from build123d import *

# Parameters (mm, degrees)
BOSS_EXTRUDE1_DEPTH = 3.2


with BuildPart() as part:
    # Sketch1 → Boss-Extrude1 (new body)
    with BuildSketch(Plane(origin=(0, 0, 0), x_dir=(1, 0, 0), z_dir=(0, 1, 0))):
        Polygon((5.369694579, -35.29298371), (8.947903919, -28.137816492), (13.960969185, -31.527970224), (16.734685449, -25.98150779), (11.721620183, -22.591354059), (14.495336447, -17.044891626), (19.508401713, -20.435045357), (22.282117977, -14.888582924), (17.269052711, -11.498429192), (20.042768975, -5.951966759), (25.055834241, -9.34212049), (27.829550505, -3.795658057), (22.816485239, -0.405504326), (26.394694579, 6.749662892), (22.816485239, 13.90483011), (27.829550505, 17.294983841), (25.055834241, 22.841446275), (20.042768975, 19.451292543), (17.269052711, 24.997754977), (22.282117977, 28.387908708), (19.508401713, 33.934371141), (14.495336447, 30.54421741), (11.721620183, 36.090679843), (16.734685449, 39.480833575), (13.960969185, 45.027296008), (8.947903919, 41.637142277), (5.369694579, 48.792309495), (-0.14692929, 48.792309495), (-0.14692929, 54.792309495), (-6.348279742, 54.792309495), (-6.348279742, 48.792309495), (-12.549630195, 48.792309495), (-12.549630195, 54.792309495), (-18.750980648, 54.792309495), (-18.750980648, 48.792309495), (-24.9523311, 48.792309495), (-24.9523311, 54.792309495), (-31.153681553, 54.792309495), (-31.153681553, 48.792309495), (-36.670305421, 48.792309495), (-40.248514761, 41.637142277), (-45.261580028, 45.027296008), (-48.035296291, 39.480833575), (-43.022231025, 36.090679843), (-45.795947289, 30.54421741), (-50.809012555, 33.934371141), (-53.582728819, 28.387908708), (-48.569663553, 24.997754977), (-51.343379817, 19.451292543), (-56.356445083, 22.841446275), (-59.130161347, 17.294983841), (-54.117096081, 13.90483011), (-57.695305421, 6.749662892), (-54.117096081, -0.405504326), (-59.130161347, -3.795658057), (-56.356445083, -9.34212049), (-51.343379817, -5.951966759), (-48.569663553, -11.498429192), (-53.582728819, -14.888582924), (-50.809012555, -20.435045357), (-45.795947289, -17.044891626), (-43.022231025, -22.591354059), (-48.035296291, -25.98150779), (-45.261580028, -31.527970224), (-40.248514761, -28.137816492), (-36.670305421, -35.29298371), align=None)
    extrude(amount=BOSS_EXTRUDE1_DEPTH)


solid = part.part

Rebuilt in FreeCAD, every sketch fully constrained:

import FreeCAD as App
import Part
import Sketcher

doc = App.newDocument("Part")
body = doc.addObject("PartDesign::Body", "Body")

sketch1 = doc.addObject("Sketcher::SketchObject", "Sketch")
body.addObject(sketch1)
sketch1.AttachmentSupport = (doc.XZ_Plane, [""])
sketch1.MapMode = "FlatFace"
sketch1.addGeometry([
    Part.LineSegment(App.Vector(5.369695, 35.292984, 0), App.Vector(8.947904, 28.137816, 0)),
    Part.LineSegment(App.Vector(8.947904, 28.137816, 0), App.Vector(13.960969, 31.52797, 0)),
    Part.LineSegment(App.Vector(13.960969, 31.52797, 0), App.Vector(16.734685, 25.981508, 0)),
    Part.LineSegment(App.Vector(16.734685, 25.981508, 0), App.Vector(11.72162, 22.591354, 0)),
    Part.LineSegment(App.Vector(11.72162, 22.591354, 0), App.Vector(14.495336, 17.044892, 0)),
    Part.LineSegment(App.Vector(14.495336, 17.044892, 0), App.Vector(19.508402, 20.435045, 0)),
    Part.LineSegment(App.Vector(19.508402, 20.435045, 0), App.Vector(22.282118, 14.888583, 0)),
    Part.LineSegment(App.Vector(22.282118, 14.888583, 0), App.Vector(17.269053, 11.498429, 0)),
    Part.LineSegment(App.Vector(17.269053, 11.498429, 0), App.Vector(20.042769, 5.951967, 0)),
    Part.LineSegment(App.Vector(20.042769, 5.951967, 0), App.Vector(25.055834, 9.34212, 0)),
    Part.LineSegment(App.Vector(25.055834, 9.34212, 0), App.Vector(27.829551, 3.795658, 0)),
    Part.LineSegment(App.Vector(27.829551, 3.795658, 0), App.Vector(22.816485, 0.405504, 0)),
    Part.LineSegment(App.Vector(22.816485, 0.405504, 0), App.Vector(26.394695, -6.749663, 0)),
    Part.LineSegment(App.Vector(26.394695, -6.749663, 0), App.Vector(22.816485, -13.90483, 0)),
    Part.LineSegment(App.Vector(22.816485, -13.90483, 0), App.Vector(27.829551, -17.294984, 0)),
    Part.LineSegment(App.Vector(27.829551, -17.294984, 0), App.Vector(25.055834, -22.841446, 0)),
    Part.LineSegment(App.Vector(25.055834, -22.841446, 0), App.Vector(20.042769, -19.451293, 0)),
    Part.LineSegment(App.Vector(20.042769, -19.451293, 0), App.Vector(17.269053, -24.997755, 0)),
    Part.LineSegment(App.Vector(17.269053, -24.997755, 0), App.Vector(22.282118, -28.387909, 0)),
    Part.LineSegment(App.Vector(22.282118, -28.387909, 0), App.Vector(19.508402, -33.934371, 0)),
    Part.LineSegment(App.Vector(19.508402, -33.934371, 0), App.Vector(14.495336, -30.544217, 0)),
    Part.LineSegment(App.Vector(14.495336, -30.544217, 0), App.Vector(11.72162, -36.09068, 0)),
    Part.LineSegment(App.Vector(11.72162, -36.09068, 0), App.Vector(16.734685, -39.480834, 0)),
    Part.LineSegment(App.Vector(16.734685, -39.480834, 0), App.Vector(13.960969, -45.027296, 0)),
    Part.LineSegment(App.Vector(13.960969, -45.027296, 0), App.Vector(8.947904, -41.637142, 0)),
    Part.LineSegment(App.Vector(8.947904, -41.637142, 0), App.Vector(5.369695, -48.792309, 0)),
    Part.LineSegment(App.Vector(5.369695, -48.792309, 0), App.Vector(-0.146929, -48.792309, 0)),
    Part.LineSegment(App.Vector(-0.146929, -48.792309, 0), App.Vector(-0.146929, -54.792309, 0)),
    Part.LineSegment(App.Vector(-0.146929, -54.792309, 0), App.Vector(-6.34828, -54.792309, 0)),
    Part.LineSegment(App.Vector(-6.34828, -54.792309, 0), App.Vector(-6.34828, -48.792309, 0)),
    Part.LineSegment(App.Vector(-6.34828, -48.792309, 0), App.Vector(-12.54963, -48.792309, 0)),
    Part.LineSegment(App.Vector(-12.54963, -48.792309, 0), App.Vector(-12.54963, -54.792309, 0)),
    Part.LineSegment(App.Vector(-12.54963, -54.792309, 0), App.Vector(-18.750981, -54.792309, 0)),
    Part.LineSegment(App.Vector(-18.750981, -54.792309, 0), App.Vector(-18.750981, -48.792309, 0)),
    Part.LineSegment(App.Vector(-18.750981, -48.792309, 0), App.Vector(-24.952331, -48.792309, 0)),
    Part.LineSegment(App.Vector(-24.952331, -48.792309, 0), App.Vector(-24.952331, -54.792309, 0)),
    Part.LineSegment(App.Vector(-24.952331, -54.792309, 0), App.Vector(-31.153682, -54.792309, 0)),
    Part.LineSegment(App.Vector(-31.153682, -54.792309, 0), App.Vector(-31.153682, -48.792309, 0)),
    Part.LineSegment(App.Vector(-31.153682, -48.792309, 0), App.Vector(-36.670305, -48.792309, 0)),
    Part.LineSegment(App.Vector(-36.670305, -48.792309, 0), App.Vector(-40.248515, -41.637142, 0)),
    Part.LineSegment(App.Vector(-40.248515, -41.637142, 0), App.Vector(-45.26158, -45.027296, 0)),
    Part.LineSegment(App.Vector(-45.26158, -45.027296, 0), App.Vector(-48.035296, -39.480834, 0)),
    Part.LineSegment(App.Vector(-48.035296, -39.480834, 0), App.Vector(-43.022231, -36.09068, 0)),
    Part.LineSegment(App.Vector(-43.022231, -36.09068, 0), App.Vector(-45.795947, -30.544217, 0)),
    Part.LineSegment(App.Vector(-45.795947, -30.544217, 0), App.Vector(-50.809013, -33.934371, 0)),
    Part.LineSegment(App.Vector(-50.809013, -33.934371, 0), App.Vector(-53.582729, -28.387909, 0)),
    Part.LineSegment(App.Vector(-53.582729, -28.387909, 0), App.Vector(-48.569664, -24.997755, 0)),
    Part.LineSegment(App.Vector(-48.569664, -24.997755, 0), App.Vector(-51.34338, -19.451293, 0)),
    Part.LineSegment(App.Vector(-51.34338, -19.451293, 0), App.Vector(-56.356445, -22.841446, 0)),
    Part.LineSegment(App.Vector(-56.356445, -22.841446, 0), App.Vector(-59.130161, -17.294984, 0)),
    Part.LineSegment(App.Vector(-59.130161, -17.294984, 0), App.Vector(-54.117096, -13.90483, 0)),
    Part.LineSegment(App.Vector(-54.117096, -13.90483, 0), App.Vector(-57.695305, -6.749663, 0)),
    Part.LineSegment(App.Vector(-57.695305, -6.749663, 0), App.Vector(-54.117096, 0.405504, 0)),
    Part.LineSegment(App.Vector(-54.117096, 0.405504, 0), App.Vector(-59.130161, 3.795658, 0)),
    Part.LineSegment(App.Vector(-59.130161, 3.795658, 0), App.Vector(-56.356445, 9.34212, 0)),
    Part.LineSegment(App.Vector(-56.356445, 9.34212, 0), App.Vector(-51.34338, 5.951967, 0)),
    Part.LineSegment(App.Vector(-51.34338, 5.951967, 0), App.Vector(-48.569664, 11.498429, 0)),
    Part.LineSegment(App.Vector(-48.569664, 11.498429, 0), App.Vector(-53.582729, 14.888583, 0)),
    Part.LineSegment(App.Vector(-53.582729, 14.888583, 0), App.Vector(-50.809013, 20.435045, 0)),
    Part.LineSegment(App.Vector(-50.809013, 20.435045, 0), App.Vector(-45.795947, 17.044892, 0)),
    Part.LineSegment(App.Vector(-45.795947, 17.044892, 0), App.Vector(-43.022231, 22.591354, 0)),
    Part.LineSegment(App.Vector(-43.022231, 22.591354, 0), App.Vector(-48.035296, 25.981508, 0)),
    Part.LineSegment(App.Vector(-48.035296, 25.981508, 0), App.Vector(-45.26158, 31.52797, 0)),
    Part.LineSegment(App.Vector(-45.26158, 31.52797, 0), App.Vector(-40.248515, 28.137816, 0)),
    Part.LineSegment(App.Vector(-40.248515, 28.137816, 0), App.Vector(-36.670305, 35.292984, 0)),
    Part.LineSegment(App.Vector(-36.670305, 35.292984, 0), App.Vector(5.369695, 35.292984, 0)),
], False)
sketch1.addConstraint([
    Sketcher.Constraint("Coincident", 0, 2, 1, 1),
    Sketcher.Constraint("Coincident", 1, 2, 2, 1),
    Sketcher.Constraint("Coincident", 2, 2, 3, 1),
    Sketcher.Constraint("Coincident", 3, 2, 4, 1),
    Sketcher.Constraint("Coincident", 4, 2, 5, 1),
    Sketcher.Constraint("Coincident", 5, 2, 6, 1),
    Sketcher.Constraint("Coincident", 6, 2, 7, 1),
    Sketcher.Constraint("Coincident", 7, 2, 8, 1),
    Sketcher.Constraint("Coincident", 8, 2, 9, 1),
    Sketcher.Constraint("Coincident", 9, 2, 10, 1),
    Sketcher.Constraint("Coincident", 10, 2, 11, 1),
    Sketcher.Constraint("Coincident", 11, 2, 12, 1),
    Sketcher.Constraint("Coincident", 12, 2, 13, 1),
    Sketcher.Constraint("Coincident", 13, 2, 14, 1),
    Sketcher.Constraint("Coincident", 14, 2, 15, 1),
    Sketcher.Constraint("Coincident", 15, 2, 16, 1),
    Sketcher.Constraint("Coincident", 16, 2, 17, 1),
    Sketcher.Constraint("Coincident", 17, 2, 18, 1),
    Sketcher.Constraint("Coincident", 18, 2, 19, 1),
    Sketcher.Constraint("Coincident", 19, 2, 20, 1),
    Sketcher.Constraint("Coincident", 20, 2, 21, 1),
    Sketcher.Constraint("Coincident", 21, 2, 22, 1),
    Sketcher.Constraint("Coincident", 22, 2, 23, 1),
    Sketcher.Constraint("Coincident", 23, 2, 24, 1),
    Sketcher.Constraint("Coincident", 24, 2, 25, 1),
    Sketcher.Constraint("Coincident", 25, 2, 26, 1),
    Sketcher.Constraint("Coincident", 26, 2, 27, 1),
    Sketcher.Constraint("Coincident", 27, 2, 28, 1),
    Sketcher.Constraint("Coincident", 28, 2, 29, 1),
    Sketcher.Constraint("Coincident", 29, 2, 30, 1),
    Sketcher.Constraint("Coincident", 30, 2, 31, 1),
    Sketcher.Constraint("Coincident", 31, 2, 32, 1),
    Sketcher.Constraint("Coincident", 32, 2, 33, 1),
    Sketcher.Constraint("Coincident", 33, 2, 34, 1),
    Sketcher.Constraint("Coincident", 34, 2, 35, 1),
    Sketcher.Constraint("Coincident", 35, 2, 36, 1),
    Sketcher.Constraint("Coincident", 36, 2, 37, 1),
    Sketcher.Constraint("Coincident", 37, 2, 38, 1),
    Sketcher.Constraint("Coincident", 38, 2, 39, 1),
    Sketcher.Constraint("Coincident", 39, 2, 40, 1),
    Sketcher.Constraint("Coincident", 40, 2, 41, 1),
    Sketcher.Constraint("Coincident", 41, 2, 42, 1),
    Sketcher.Constraint("Coincident", 42, 2, 43, 1),
    Sketcher.Constraint("Coincident", 43, 2, 44, 1),
    Sketcher.Constraint("Coincident", 44, 2, 45, 1),
    Sketcher.Constraint("Coincident", 45, 2, 46, 1),
    Sketcher.Constraint("Coincident", 46, 2, 47, 1),
    Sketcher.Constraint("Coincident", 47, 2, 48, 1),
    Sketcher.Constraint("Coincident", 48, 2, 49, 1),
    Sketcher.Constraint("Coincident", 49, 2, 50, 1),
    Sketcher.Constraint("Coincident", 50, 2, 51, 1),
    Sketcher.Constraint("Coincident", 51, 2, 52, 1),
    Sketcher.Constraint("Coincident", 52, 2, 53, 1),
    Sketcher.Constraint("Coincident", 53, 2, 54, 1),
    Sketcher.Constraint("Coincident", 54, 2, 55, 1),
    Sketcher.Constraint("Coincident", 55, 2, 56, 1),
    Sketcher.Constraint("Coincident", 56, 2, 57, 1),
    Sketcher.Constraint("Coincident", 57, 2, 58, 1),
    Sketcher.Constraint("Coincident", 58, 2, 59, 1),
    Sketcher.Constraint("Coincident", 59, 2, 60, 1),
    Sketcher.Constraint("Coincident", 60, 2, 61, 1),
    Sketcher.Constraint("Coincident", 61, 2, 62, 1),
    Sketcher.Constraint("Coincident", 62, 2, 63, 1),
    Sketcher.Constraint("Coincident", 63, 2, 64, 1),
    Sketcher.Constraint("Coincident", 64, 2, 65, 1),
    Sketcher.Constraint("Coincident", 65, 2, 0, 1),
    Sketcher.Constraint("Horizontal", 26),
    Sketcher.Constraint("Vertical", 27),
    Sketcher.Constraint("Horizontal", 28),
    Sketcher.Constraint("Vertical", 29),
    Sketcher.Constraint("Horizontal", 30),
    Sketcher.Constraint("Vertical", 31),
    Sketcher.Constraint("Horizontal", 32),
    Sketcher.Constraint("Vertical", 33),
    Sketcher.Constraint("Horizontal", 34),
    Sketcher.Constraint("Vertical", 35),
    Sketcher.Constraint("Horizontal", 36),
    Sketcher.Constraint("Vertical", 37),
    Sketcher.Constraint("Horizontal", 38),
    Sketcher.Constraint("Horizontal", 65),
    Sketcher.Constraint("Parallel", 0, 2),
    Sketcher.Constraint("Parallel", 1, 3),
    Sketcher.Constraint("Parallel", 2, 4),
    Sketcher.Constraint("Parallel", 3, 5),
    Sketcher.Constraint("Parallel", 4, 6),
    Sketcher.Constraint("Parallel", 5, 7),
    Sketcher.Constraint("Parallel", 6, 8),
    Sketcher.Constraint("Parallel", 7, 9),
    Sketcher.Constraint("Parallel", 8, 10),
    Sketcher.Constraint("Parallel", 9, 11),
    Sketcher.Constraint("Parallel", 10, 12),
    Sketcher.Constraint("Parallel", 13, 15),
    Sketcher.Constraint("Parallel", 14, 16),
    Sketcher.Constraint("Parallel", 15, 17),
    Sketcher.Constraint("Parallel", 16, 18),
    Sketcher.Constraint("Parallel", 17, 19),
    Sketcher.Constraint("Parallel", 18, 20),
    Sketcher.Constraint("Parallel", 19, 21),
    Sketcher.Constraint("Parallel", 20, 22),
    Sketcher.Constraint("Parallel", 21, 23),
    Sketcher.Constraint("Parallel", 22, 24),
    Sketcher.Constraint("Parallel", 23, 25),
    Sketcher.Constraint("Parallel", 12, 39),
    Sketcher.Constraint("Parallel", 11, 40),
    Sketcher.Constraint("Parallel", 39, 41),
    Sketcher.Constraint("Parallel", 40, 42),
    Sketcher.Constraint("Parallel", 41, 43),
    Sketcher.Constraint("Parallel", 42, 44),
    Sketcher.Constraint("Parallel", 43, 45),
    Sketcher.Constraint("Parallel", 44, 46),
    Sketcher.Constraint("Parallel", 45, 47),
    Sketcher.Constraint("Parallel", 46, 48),
    Sketcher.Constraint("Parallel", 47, 49),
    Sketcher.Constraint("Parallel", 48, 50),
    Sketcher.Constraint("Parallel", 49, 51),
    Sketcher.Constraint("Parallel", 25, 52),
    Sketcher.Constraint("Parallel", 24, 53),
    Sketcher.Constraint("Parallel", 52, 54),
    Sketcher.Constraint("Parallel", 53, 55),
    Sketcher.Constraint("Parallel", 54, 56),
    Sketcher.Constraint("Parallel", 55, 57),
    Sketcher.Constraint("Parallel", 56, 58),
    Sketcher.Constraint("Parallel", 57, 59),
    Sketcher.Constraint("Parallel", 58, 60),
    Sketcher.Constraint("Parallel", 59, 61),
    Sketcher.Constraint("Parallel", 60, 62),
    Sketcher.Constraint("Parallel", 61, 63),
    Sketcher.Constraint("Parallel", 62, 64),
    Sketcher.Constraint("Horizontal", 26, 2, 29, 2),
    Sketcher.Constraint("Horizontal", 28, 2, 31, 2),
    Sketcher.Constraint("Horizontal", 30, 2, 33, 2),
    Sketcher.Constraint("Horizontal", 32, 2, 35, 2),
    Sketcher.Constraint("Horizontal", 34, 2, 37, 2),
    Sketcher.Constraint("Horizontal", 24, 2, 39, 2),
    Sketcher.Constraint("Horizontal", 23, 2, 40, 2),
    Sketcher.Constraint("Horizontal", 22, 2, 41, 2),
    Sketcher.Constraint("Horizontal", 21, 2, 42, 2),
    Sketcher.Constraint("Horizontal", 20, 2, 43, 2),
    Sketcher.Constraint("Horizontal", 19, 2, 44, 2),
    Sketcher.Constraint("Horizontal", 18, 2, 45, 2),
    Sketcher.Constraint("Horizontal", 17, 2, 46, 2),
    Sketcher.Constraint("Horizontal", 16, 2, 47, 2),
    Sketcher.Constraint("Horizontal", 15, 2, 48, 2),
    Sketcher.Constraint("Horizontal", 14, 2, 49, 2),
    Sketcher.Constraint("Horizontal", 13, 2, 50, 2),
    Sketcher.Constraint("Horizontal", 12, 2, 51, 2),
    Sketcher.Constraint("Horizontal", 11, 2, 52, 2),
    Sketcher.Constraint("Horizontal", 10, 2, 53, 2),
    Sketcher.Constraint("Horizontal", 9, 2, 54, 2),
    Sketcher.Constraint("Horizontal", 8, 2, 55, 2),
    Sketcher.Constraint("Horizontal", 7, 2, 56, 2),
    Sketcher.Constraint("Horizontal", 6, 2, 57, 2),
    Sketcher.Constraint("Horizontal", 5, 2, 58, 2),
    Sketcher.Constraint("Horizontal", 4, 2, 59, 2),
    Sketcher.Constraint("Horizontal", 3, 2, 60, 2),
    Sketcher.Constraint("Horizontal", 2, 2, 61, 2),
    Sketcher.Constraint("Horizontal", 1, 2, 62, 2),
    Sketcher.Constraint("Horizontal", 0, 2, 63, 2),
    Sketcher.Constraint("Vertical", 11, 2, 13, 2),
    Sketcher.Constraint("Vertical", 10, 2, 14, 2),
    Sketcher.Constraint("Vertical", 9, 2, 15, 2),
    Sketcher.Constraint("Vertical", 8, 2, 16, 2),
    Sketcher.Constraint("Vertical", 7, 2, 17, 2),
    Sketcher.Constraint("Vertical", 6, 2, 18, 2),
    Sketcher.Constraint("Vertical", 5, 2, 19, 2),
    Sketcher.Constraint("Vertical", 4, 2, 20, 2),
    Sketcher.Constraint("Vertical", 3, 2, 21, 2),
    Sketcher.Constraint("Vertical", 2, 2, 22, 2),
    Sketcher.Constraint("Vertical", 1, 2, 23, 2),
    Sketcher.Constraint("Vertical", 0, 2, 24, 2),
    Sketcher.Constraint("Vertical", 50, 2, 52, 2),
    Sketcher.Constraint("Vertical", 49, 2, 53, 2),
    Sketcher.Constraint("Vertical", 38, 2, 64, 2),
    Sketcher.Constraint("Equal", 28, 30),
    Sketcher.Constraint("Equal", 30, 32),
    Sketcher.Constraint("Equal", 32, 34),
    Sketcher.Constraint("Equal", 34, 36),
    Sketcher.Constraint("Equal", 26, 38),
    Sketcher.Constraint("Equal", 1, 3),
    Sketcher.Constraint("Equal", 2, 4),
    Sketcher.Constraint("Equal", 3, 5),
    Sketcher.Constraint("Equal", 4, 6),
    Sketcher.Constraint("Equal", 5, 7),
    Sketcher.Constraint("Equal", 6, 8),
    Sketcher.Constraint("Equal", 7, 9),
    Sketcher.Constraint("Equal", 8, 10),
    Sketcher.Constraint("Equal", 9, 11),
    Sketcher.Constraint("Equal", 0, 12),
    Sketcher.Constraint("DistanceY", 27, 2, 27, 1, 6.0),
    Sketcher.Constraint("Distance", 0, 8.0),
    Sketcher.Constraint("DistanceX", 65, 1, 65, 2, 42.04),
    Sketcher.Constraint("DistanceX", 28, 2, 28, 1, 6.20135),
    Sketcher.Constraint("DistanceX", -1, 1, 5, 2, 19.508402),
    Sketcher.Constraint("Distance", 2, 6.20135),
    Sketcher.Constraint("DistanceX", -1, 1, 1, 2, 13.960969),
    Sketcher.Constraint("DistanceY", -1, 1, 1, 2, 31.52797),
    Sketcher.Constraint("DistanceX", -1, 1, 3, 2, 11.72162),
    Sketcher.Constraint("DistanceY", -1, 1, 4, 2, 17.044892),
])
pad1 = doc.addObject("PartDesign::Pad", "Pad")
body.addObject(pad1)
pad1.Profile = sketch1
pad1.Length = 3.2
pad1.Reversed = True

doc.recompute()
